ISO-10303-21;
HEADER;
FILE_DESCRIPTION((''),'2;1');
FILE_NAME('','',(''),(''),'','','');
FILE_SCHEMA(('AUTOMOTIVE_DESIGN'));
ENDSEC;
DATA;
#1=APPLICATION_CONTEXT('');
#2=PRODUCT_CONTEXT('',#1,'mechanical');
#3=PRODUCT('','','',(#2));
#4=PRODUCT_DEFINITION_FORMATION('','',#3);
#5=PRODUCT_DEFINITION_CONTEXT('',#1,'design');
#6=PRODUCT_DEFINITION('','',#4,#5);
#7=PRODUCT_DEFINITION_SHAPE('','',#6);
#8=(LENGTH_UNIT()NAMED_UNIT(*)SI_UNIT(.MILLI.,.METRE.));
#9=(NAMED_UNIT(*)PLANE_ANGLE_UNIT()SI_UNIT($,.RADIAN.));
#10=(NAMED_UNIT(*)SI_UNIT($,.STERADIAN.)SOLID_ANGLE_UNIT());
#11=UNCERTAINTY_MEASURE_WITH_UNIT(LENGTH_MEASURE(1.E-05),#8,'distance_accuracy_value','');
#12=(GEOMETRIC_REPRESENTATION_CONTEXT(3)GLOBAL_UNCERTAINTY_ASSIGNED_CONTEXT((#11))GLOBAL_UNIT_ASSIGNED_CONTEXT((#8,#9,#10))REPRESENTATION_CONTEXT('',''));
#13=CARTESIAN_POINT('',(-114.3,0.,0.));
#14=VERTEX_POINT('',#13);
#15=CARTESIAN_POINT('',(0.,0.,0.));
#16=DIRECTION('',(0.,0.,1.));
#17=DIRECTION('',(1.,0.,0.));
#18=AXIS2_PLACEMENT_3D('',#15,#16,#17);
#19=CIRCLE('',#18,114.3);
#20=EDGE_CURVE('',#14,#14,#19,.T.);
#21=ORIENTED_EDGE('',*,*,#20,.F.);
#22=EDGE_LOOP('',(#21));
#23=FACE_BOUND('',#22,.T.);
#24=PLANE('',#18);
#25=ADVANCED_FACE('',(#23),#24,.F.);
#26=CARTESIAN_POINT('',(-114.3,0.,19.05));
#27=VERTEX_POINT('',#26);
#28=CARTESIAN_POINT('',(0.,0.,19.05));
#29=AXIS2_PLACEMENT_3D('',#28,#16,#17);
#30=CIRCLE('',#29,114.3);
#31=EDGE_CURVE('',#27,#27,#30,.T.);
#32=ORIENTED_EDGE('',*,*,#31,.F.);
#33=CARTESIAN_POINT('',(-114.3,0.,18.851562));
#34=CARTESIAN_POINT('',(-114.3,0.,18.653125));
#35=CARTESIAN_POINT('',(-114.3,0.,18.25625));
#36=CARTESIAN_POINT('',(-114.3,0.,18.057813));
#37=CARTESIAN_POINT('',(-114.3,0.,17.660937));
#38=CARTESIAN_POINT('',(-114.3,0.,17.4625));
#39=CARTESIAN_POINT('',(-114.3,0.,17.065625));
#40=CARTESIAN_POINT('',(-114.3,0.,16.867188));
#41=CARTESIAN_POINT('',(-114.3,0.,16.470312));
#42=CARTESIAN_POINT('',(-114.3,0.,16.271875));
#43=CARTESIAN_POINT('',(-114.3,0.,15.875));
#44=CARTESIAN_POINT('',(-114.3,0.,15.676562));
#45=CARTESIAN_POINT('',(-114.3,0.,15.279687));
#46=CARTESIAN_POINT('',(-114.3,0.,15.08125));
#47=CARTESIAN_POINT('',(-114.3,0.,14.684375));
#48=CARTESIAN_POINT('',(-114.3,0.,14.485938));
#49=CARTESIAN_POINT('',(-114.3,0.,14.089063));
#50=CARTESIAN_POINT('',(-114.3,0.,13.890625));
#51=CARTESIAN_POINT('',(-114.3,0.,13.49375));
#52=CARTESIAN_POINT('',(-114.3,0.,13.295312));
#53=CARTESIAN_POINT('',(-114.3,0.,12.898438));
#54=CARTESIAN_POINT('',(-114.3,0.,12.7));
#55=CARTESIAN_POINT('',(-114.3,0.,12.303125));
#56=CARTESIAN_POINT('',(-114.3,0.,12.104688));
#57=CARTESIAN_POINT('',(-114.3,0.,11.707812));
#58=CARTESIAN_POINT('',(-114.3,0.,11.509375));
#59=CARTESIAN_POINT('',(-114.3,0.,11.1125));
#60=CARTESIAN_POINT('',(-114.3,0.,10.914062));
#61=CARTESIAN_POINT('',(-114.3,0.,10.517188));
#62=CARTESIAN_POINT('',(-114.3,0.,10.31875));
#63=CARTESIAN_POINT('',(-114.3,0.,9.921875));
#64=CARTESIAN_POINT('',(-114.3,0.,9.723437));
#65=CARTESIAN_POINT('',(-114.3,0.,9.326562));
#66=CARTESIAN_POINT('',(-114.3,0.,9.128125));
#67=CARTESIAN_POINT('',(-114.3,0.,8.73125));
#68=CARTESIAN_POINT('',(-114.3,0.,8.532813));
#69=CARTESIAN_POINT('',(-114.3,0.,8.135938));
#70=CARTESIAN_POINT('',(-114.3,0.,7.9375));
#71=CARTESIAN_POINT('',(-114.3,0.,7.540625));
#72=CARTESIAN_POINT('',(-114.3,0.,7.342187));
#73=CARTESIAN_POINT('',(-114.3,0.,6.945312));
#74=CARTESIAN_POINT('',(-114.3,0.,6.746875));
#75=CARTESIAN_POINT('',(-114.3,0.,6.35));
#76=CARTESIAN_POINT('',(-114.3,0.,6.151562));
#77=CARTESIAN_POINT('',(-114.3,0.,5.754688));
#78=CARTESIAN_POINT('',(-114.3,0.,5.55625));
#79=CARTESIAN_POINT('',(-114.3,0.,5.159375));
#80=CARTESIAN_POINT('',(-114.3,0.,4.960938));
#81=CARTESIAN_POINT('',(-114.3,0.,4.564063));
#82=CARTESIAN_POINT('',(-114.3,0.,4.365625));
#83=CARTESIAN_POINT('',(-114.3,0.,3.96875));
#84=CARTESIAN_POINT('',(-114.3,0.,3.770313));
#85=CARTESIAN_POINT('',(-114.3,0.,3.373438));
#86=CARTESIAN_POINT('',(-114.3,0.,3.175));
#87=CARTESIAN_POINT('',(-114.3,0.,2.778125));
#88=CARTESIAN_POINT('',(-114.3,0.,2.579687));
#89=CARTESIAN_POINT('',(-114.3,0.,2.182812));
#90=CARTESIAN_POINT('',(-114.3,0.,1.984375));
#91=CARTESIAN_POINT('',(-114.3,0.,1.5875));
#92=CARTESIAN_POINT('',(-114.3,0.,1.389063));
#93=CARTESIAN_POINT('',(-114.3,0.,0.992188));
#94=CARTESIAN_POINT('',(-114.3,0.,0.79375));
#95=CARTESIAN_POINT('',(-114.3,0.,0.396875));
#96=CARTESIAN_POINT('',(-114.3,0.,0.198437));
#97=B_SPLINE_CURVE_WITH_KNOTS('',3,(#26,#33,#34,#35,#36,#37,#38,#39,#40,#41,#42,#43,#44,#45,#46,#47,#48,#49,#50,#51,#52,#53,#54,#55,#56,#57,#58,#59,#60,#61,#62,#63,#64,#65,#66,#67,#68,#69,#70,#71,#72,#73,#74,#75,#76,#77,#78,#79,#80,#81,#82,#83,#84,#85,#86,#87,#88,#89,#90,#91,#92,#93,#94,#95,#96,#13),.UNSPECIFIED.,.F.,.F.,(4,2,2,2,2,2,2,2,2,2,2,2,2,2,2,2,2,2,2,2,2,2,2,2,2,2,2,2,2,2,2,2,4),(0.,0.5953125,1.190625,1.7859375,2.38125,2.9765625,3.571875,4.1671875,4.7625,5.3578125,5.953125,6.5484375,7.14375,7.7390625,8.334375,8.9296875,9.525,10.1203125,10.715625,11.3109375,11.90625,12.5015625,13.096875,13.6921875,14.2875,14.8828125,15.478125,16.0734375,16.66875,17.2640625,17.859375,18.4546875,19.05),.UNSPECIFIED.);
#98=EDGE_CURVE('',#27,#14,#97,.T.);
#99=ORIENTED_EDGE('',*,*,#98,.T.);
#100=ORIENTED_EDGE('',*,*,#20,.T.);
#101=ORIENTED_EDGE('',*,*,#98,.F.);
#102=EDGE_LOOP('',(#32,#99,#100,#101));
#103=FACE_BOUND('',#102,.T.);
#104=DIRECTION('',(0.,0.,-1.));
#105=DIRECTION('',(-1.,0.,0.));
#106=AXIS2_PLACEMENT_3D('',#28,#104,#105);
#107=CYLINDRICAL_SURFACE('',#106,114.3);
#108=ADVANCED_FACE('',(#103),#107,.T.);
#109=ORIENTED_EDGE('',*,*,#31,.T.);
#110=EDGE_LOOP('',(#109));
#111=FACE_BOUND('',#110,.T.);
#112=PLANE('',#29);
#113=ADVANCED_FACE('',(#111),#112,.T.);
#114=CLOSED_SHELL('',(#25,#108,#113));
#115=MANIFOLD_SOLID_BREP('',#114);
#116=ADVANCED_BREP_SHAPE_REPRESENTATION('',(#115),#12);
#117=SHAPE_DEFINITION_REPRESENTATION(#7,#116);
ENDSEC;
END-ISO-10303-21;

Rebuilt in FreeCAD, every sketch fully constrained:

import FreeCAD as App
import Part
import Sketcher

V = App.Vector
Q = App.Units.Quantity

doc = App.newDocument("Part")
body = doc.addObject("PartDesign::Body", "Body")

# Sketch on XY plane
sketch1 = body.newObject("Sketcher::SketchObject", "Sketch")
sketch1.AttachmentSupport = (doc.getObject("XY_Plane"), [""])
sketch1.MapMode = "FlatFace"
sketch1.addGeometry(Part.Circle(V(0, 0, 0), V(0, 0, 1), 114.3), False)
sketch1.addConstraint([
    Sketcher.Constraint("Coincident", 0, 3, -1, 1),
    Sketcher.Constraint("Diameter", 0, Q("9 in")),
])
pad1 = body.newObject("PartDesign::Pad", "Pad")
pad1.Profile = sketch1
pad1.Length = Q("0.75 in")

doc.recompute()
